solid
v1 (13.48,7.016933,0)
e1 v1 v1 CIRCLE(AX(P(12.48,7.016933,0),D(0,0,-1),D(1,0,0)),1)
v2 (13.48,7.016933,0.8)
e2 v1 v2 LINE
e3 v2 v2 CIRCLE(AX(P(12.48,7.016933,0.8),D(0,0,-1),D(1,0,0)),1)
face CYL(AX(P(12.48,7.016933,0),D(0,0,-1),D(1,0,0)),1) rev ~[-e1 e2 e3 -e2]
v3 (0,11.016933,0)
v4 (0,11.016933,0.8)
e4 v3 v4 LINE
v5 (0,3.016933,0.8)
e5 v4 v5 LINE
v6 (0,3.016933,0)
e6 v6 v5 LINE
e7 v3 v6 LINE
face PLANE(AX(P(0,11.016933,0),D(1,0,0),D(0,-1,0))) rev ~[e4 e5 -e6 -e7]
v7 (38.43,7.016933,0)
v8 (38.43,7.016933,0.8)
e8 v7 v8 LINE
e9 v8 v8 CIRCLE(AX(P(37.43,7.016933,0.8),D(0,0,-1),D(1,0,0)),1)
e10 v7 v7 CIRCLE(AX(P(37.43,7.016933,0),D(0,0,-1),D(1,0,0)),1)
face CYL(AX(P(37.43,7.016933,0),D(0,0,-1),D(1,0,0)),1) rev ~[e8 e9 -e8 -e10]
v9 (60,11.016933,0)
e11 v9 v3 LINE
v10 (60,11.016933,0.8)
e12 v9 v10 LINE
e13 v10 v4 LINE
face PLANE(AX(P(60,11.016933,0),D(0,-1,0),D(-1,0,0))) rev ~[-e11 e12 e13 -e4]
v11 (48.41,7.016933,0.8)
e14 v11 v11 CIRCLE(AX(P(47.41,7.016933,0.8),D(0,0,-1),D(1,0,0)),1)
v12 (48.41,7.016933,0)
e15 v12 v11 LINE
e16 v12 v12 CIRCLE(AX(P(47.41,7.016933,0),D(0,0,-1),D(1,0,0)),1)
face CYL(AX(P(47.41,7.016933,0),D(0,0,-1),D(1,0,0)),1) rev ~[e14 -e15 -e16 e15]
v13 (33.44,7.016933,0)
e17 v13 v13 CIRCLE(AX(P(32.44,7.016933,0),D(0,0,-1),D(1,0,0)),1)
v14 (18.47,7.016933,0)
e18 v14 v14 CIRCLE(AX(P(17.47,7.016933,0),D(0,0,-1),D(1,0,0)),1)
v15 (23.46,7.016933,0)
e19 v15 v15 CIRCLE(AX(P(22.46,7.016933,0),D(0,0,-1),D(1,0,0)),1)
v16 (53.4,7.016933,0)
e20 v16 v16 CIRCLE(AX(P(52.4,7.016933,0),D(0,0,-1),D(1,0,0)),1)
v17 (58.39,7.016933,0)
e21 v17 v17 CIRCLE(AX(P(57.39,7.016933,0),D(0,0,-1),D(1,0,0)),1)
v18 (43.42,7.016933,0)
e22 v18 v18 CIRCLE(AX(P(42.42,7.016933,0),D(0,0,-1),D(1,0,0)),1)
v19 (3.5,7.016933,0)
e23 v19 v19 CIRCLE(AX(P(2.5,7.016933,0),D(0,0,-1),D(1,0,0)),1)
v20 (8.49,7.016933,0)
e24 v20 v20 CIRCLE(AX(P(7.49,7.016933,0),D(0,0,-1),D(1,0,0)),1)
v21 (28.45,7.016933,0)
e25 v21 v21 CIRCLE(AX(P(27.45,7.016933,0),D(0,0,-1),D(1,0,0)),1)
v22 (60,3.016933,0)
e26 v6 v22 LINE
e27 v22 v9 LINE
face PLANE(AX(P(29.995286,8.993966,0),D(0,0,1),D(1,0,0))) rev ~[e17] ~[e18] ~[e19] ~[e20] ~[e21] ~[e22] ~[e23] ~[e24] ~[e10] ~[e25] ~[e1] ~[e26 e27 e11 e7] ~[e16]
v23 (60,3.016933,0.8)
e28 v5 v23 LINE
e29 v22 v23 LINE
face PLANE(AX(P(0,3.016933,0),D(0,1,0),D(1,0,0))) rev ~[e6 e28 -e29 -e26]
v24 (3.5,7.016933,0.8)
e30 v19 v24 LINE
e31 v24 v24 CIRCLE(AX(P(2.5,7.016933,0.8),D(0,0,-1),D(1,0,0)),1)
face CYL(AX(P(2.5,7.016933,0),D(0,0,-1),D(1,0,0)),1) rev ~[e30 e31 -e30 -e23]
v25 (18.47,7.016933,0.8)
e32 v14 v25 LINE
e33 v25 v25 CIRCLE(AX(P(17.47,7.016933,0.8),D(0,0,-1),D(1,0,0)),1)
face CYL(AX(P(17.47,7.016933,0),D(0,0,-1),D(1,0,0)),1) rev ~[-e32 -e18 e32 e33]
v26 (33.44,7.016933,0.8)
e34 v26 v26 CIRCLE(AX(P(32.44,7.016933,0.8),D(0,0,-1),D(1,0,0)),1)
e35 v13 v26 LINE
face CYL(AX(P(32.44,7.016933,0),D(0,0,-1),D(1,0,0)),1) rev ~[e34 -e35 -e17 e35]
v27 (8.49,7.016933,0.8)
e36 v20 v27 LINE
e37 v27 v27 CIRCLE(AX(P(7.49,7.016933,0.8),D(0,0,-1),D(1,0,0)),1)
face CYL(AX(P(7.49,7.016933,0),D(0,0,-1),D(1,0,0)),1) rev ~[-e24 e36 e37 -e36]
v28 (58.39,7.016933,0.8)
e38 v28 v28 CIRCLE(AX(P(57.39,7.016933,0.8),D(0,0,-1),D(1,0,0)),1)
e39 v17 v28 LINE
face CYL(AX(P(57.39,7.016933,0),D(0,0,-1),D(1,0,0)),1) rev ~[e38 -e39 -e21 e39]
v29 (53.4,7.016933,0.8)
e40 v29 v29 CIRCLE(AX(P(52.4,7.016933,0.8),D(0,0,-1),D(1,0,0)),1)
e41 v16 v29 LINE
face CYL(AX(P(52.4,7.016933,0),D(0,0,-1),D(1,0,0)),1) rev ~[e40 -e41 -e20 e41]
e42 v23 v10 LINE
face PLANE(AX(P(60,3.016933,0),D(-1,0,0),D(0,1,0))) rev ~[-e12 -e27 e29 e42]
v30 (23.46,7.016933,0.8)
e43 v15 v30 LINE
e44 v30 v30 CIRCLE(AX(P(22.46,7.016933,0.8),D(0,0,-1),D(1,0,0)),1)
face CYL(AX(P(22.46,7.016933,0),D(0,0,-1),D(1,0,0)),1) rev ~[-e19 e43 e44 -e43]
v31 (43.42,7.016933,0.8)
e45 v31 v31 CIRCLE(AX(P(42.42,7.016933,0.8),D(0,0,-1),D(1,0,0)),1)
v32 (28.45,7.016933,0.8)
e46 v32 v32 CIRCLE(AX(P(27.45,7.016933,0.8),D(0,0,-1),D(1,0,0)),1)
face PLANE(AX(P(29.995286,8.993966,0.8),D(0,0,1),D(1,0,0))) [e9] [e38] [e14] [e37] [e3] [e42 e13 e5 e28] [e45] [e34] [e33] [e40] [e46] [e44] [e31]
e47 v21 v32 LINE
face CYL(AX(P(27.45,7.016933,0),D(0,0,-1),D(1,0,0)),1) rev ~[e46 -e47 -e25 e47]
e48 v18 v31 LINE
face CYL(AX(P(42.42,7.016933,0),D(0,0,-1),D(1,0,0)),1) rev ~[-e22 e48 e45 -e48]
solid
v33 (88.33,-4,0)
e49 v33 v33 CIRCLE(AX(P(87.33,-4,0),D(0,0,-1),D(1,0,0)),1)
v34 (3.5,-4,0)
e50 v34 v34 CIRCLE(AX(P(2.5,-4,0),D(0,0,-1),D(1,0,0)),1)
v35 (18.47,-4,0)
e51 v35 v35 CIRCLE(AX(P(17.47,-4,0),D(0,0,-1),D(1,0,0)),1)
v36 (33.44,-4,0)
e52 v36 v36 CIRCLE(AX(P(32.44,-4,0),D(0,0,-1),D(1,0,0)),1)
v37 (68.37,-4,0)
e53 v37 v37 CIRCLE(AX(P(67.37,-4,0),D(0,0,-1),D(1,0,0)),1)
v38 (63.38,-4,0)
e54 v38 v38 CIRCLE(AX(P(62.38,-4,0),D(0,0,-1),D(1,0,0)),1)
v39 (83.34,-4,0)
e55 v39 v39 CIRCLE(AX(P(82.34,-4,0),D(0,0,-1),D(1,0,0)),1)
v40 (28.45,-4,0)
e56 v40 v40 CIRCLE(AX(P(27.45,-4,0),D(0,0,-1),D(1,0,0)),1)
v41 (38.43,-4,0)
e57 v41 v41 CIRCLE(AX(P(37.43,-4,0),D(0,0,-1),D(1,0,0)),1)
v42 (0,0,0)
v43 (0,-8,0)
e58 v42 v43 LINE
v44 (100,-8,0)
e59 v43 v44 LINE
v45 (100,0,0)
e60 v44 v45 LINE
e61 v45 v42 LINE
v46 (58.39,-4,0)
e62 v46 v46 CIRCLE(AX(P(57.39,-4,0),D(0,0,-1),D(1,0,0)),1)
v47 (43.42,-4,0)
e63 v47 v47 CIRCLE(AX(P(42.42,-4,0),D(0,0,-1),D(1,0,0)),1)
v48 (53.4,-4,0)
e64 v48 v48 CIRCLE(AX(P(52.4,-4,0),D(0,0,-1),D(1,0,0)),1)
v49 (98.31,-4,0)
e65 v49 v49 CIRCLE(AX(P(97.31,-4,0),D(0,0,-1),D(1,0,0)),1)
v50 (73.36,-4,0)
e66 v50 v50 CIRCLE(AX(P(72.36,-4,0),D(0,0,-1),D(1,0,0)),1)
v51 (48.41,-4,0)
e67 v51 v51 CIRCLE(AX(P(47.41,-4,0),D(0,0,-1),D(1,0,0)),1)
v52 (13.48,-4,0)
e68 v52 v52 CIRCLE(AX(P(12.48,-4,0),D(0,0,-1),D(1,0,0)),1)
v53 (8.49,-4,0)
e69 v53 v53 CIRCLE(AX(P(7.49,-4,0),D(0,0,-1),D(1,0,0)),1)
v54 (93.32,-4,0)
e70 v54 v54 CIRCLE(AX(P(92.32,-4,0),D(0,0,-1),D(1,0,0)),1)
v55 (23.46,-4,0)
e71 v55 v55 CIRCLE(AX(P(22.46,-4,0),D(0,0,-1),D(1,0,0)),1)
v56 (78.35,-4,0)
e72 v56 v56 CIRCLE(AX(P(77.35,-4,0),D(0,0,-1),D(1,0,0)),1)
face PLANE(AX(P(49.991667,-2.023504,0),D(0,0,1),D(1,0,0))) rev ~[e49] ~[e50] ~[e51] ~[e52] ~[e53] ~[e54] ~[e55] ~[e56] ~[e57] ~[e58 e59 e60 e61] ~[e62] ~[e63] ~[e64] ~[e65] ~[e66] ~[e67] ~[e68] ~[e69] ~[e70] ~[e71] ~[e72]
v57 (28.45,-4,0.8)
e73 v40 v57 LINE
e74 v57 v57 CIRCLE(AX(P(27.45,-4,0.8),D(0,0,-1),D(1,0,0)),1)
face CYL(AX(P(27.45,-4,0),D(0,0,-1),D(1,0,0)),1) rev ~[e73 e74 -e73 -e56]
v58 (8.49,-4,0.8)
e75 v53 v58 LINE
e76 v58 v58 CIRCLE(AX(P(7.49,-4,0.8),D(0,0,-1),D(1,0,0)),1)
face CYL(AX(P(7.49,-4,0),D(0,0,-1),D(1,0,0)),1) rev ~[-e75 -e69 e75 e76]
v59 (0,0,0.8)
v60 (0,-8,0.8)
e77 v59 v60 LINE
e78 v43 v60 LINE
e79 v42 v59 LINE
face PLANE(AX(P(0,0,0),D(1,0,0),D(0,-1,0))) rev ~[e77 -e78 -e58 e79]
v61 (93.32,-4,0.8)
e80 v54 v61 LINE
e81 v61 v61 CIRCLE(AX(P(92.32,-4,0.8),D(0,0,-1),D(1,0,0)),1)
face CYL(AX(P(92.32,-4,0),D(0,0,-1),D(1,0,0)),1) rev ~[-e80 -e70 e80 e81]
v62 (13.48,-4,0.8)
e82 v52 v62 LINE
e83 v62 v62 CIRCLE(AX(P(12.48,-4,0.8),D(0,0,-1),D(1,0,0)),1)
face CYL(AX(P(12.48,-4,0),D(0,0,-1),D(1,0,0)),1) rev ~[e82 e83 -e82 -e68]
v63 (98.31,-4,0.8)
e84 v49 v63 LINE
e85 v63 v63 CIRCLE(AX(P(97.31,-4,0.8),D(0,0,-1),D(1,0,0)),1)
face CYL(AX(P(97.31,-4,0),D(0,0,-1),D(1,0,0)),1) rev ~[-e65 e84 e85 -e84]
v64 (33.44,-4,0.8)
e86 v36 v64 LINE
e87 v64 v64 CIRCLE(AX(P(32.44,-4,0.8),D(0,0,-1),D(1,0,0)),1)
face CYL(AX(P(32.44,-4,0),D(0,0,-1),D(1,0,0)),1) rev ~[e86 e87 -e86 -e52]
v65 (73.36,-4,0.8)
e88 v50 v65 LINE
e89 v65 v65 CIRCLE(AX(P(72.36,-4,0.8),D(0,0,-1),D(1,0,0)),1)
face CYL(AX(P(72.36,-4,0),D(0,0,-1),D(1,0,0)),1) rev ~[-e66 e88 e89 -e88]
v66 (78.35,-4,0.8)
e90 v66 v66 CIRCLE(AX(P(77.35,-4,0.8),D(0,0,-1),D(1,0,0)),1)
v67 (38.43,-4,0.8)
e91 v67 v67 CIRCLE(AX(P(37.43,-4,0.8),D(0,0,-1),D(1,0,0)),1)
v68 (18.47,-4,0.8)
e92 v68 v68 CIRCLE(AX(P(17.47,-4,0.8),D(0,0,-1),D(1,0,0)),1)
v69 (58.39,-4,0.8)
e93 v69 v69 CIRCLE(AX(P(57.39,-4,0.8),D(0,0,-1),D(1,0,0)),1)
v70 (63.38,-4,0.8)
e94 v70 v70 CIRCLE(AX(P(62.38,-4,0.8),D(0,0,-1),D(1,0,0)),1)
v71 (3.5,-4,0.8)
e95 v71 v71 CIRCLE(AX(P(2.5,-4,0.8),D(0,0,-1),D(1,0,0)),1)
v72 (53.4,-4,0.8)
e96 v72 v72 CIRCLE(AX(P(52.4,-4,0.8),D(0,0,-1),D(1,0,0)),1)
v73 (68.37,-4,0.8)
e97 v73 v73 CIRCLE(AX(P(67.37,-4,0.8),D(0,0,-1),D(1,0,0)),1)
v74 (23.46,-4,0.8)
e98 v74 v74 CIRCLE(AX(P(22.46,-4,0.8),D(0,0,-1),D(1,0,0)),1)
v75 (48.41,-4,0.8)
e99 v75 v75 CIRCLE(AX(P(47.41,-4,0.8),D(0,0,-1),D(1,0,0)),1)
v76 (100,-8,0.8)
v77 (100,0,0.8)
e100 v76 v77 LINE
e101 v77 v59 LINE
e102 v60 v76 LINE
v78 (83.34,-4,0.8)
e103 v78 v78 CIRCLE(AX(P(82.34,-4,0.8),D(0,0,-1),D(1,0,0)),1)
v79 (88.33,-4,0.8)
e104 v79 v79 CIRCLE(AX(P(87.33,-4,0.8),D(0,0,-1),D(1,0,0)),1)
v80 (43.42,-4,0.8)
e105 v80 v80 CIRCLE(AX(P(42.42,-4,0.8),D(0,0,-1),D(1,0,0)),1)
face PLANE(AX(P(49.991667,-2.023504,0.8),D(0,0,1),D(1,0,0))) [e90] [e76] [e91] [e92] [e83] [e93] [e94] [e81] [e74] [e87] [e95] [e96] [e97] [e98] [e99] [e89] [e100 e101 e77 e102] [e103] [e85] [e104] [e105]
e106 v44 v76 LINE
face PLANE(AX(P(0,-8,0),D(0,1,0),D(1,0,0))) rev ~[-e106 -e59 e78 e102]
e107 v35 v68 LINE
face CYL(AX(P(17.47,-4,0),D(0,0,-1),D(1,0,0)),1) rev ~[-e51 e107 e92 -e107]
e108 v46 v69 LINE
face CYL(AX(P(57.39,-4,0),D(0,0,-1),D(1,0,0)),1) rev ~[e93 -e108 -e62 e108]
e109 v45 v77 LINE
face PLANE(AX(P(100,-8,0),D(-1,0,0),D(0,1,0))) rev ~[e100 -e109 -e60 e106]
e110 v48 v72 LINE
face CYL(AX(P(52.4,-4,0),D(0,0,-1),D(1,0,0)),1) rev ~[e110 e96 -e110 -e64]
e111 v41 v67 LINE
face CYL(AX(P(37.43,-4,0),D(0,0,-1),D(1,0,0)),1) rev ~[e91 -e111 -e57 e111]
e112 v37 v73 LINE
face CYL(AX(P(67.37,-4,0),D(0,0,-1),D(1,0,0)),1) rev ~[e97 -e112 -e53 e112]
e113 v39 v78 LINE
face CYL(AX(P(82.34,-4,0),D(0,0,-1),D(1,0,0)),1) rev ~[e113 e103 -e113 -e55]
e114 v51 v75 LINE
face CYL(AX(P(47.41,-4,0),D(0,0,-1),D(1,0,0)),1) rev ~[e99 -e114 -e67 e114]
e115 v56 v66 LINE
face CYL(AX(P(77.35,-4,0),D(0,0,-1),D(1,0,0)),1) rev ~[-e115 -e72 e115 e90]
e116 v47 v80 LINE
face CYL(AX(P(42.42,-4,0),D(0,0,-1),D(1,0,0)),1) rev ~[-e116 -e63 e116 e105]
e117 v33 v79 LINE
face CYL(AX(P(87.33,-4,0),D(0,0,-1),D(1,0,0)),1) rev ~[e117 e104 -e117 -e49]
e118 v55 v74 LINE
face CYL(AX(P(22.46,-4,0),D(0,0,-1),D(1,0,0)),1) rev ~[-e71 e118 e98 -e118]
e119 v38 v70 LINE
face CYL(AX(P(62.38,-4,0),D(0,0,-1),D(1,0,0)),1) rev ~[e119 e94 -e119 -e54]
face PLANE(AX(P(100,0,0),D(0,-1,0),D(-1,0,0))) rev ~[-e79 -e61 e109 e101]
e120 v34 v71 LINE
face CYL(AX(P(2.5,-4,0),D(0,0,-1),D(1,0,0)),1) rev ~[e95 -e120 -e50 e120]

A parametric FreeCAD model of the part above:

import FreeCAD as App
import Part
import Sketcher


def add_polygon(sketch, points):
    """Adds a closed chain of lines whose ends are joined by coincident constraints."""
    first, n = sketch.GeometryCount, len(points)
    for a, b in zip(points, points[1:] + points[:1]):
        sketch.addGeometry(Part.LineSegment(App.Vector(*a, 0), App.Vector(*b, 0)), False)
    for i in range(n):
        sketch.addConstraint(Sketcher.Constraint("Coincident", first + i, 2, first + (i + 1) % n, 1))

doc = App.newDocument("Part")
body = doc.addObject("PartDesign::Body", "Body")
body.AllowCompound = True

# Sketch on XY plane
sketch1 = body.newObject("Sketcher::SketchObject", "Sketch")
sketch1.AttachmentSupport = (doc.getObject("XY_Plane"), [""])
sketch1.MapMode = "FlatFace"
add_polygon(sketch1, [(60, 11), (0, 11), (0, 3), (60, 3)])  # lines 0-3
sketch1.addGeometry(Part.Circle(App.Vector(2.5, 7, 0), App.Vector(0, 0, 1), 1), False)  # 4
sketch1.addGeometry(Part.Circle(App.Vector(7.5, 7, 0), App.Vector(0, 0, 1), 1), False)  # 5
sketch1.addGeometry(Part.Circle(App.Vector(12.5, 7, 0), App.Vector(0, 0, 1), 1), False)  # 6
sketch1.addGeometry(Part.Circle(App.Vector(17.5, 7, 0), App.Vector(0, 0, 1), 1), False)  # 7
sketch1.addGeometry(Part.Circle(App.Vector(22.5, 7, 0), App.Vector(0, 0, 1), 1), False)  # 8
sketch1.addGeometry(Part.Circle(App.Vector(27.4, 7, 0), App.Vector(0, 0, 1), 1), False)  # 9
sketch1.addGeometry(Part.Circle(App.Vector(32.4, 7, 0), App.Vector(0, 0, 1), 1), False)  # 10
sketch1.addGeometry(Part.Circle(App.Vector(37.4, 7, 0), App.Vector(0, 0, 1), 1), False)  # 11
sketch1.addGeometry(Part.Circle(App.Vector(42.4, 7, 0), App.Vector(0, 0, 1), 1), False)  # 12
sketch1.addGeometry(Part.Circle(App.Vector(47.4, 7, 0), App.Vector(0, 0, 1), 1), False)  # 13
sketch1.addGeometry(Part.Circle(App.Vector(52.4, 7, 0), App.Vector(0, 0, 1), 1), False)  # 14
sketch1.addGeometry(Part.Circle(App.Vector(57.4, 7, 0), App.Vector(0, 0, 1), 1), False)  # 15
add_polygon(sketch1, [(0, 0), (0, -8), (100, -8), (100, 0)])  # lines 16-19
sketch1.addGeometry(Part.Circle(App.Vector(2.5, -4, 0), App.Vector(0, 0, 1), 1), False)  # 20
sketch1.addGeometry(Part.Circle(App.Vector(7.5, -4, 0), App.Vector(0, 0, 1), 1), False)  # 21
sketch1.addGeometry(Part.Circle(App.Vector(12.5, -4, 0), App.Vector(0, 0, 1), 1), False)  # 22
sketch1.addGeometry(Part.Circle(App.Vector(17.5, -4, 0), App.Vector(0, 0, 1), 1), False)  # 23
sketch1.addGeometry(Part.Circle(App.Vector(22.5, -4, 0), App.Vector(0, 0, 1), 1), False)  # 24
sketch1.addGeometry(Part.Circle(App.Vector(27.4, -4, 0), App.Vector(0, 0, 1), 1), False)  # 25
sketch1.addGeometry(Part.Circle(App.Vector(32.4, -4, 0), App.Vector(0, 0, 1), 1), False)  # 26
sketch1.addGeometry(Part.Circle(App.Vector(37.4, -4, 0), App.Vector(0, 0, 1), 1), False)  # 27
sketch1.addGeometry(Part.Circle(App.Vector(42.4, -4, 0), App.Vector(0, 0, 1), 1), False)  # 28
sketch1.addGeometry(Part.Circle(App.Vector(47.4, -4, 0), App.Vector(0, 0, 1), 1), False)  # 29
sketch1.addGeometry(Part.Circle(App.Vector(52.4, -4, 0), App.Vector(0, 0, 1), 1), False)  # 30
sketch1.addGeometry(Part.Circle(App.Vector(57.4, -4, 0), App.Vector(0, 0, 1), 1), False)  # 31
sketch1.addGeometry(Part.Circle(App.Vector(62.4, -4, 0), App.Vector(0, 0, 1), 1), False)  # 32
sketch1.addGeometry(Part.Circle(App.Vector(67.4, -4, 0), App.Vector(0, 0, 1), 1), False)  # 33
sketch1.addGeometry(Part.Circle(App.Vector(72.4, -4, 0), App.Vector(0, 0, 1), 1), False)  # 34
sketch1.addGeometry(Part.Circle(App.Vector(77.3, -4, 0), App.Vector(0, 0, 1), 1), False)  # 35
sketch1.addGeometry(Part.Circle(App.Vector(82.3, -4, 0), App.Vector(0, 0, 1), 1), False)  # 36
sketch1.addGeometry(Part.Circle(App.Vector(87.3, -4, 0), App.Vector(0, 0, 1), 1), False)  # 37
sketch1.addGeometry(Part.Circle(App.Vector(92.3, -4, 0), App.Vector(0, 0, 1), 1), False)  # 38
sketch1.addGeometry(Part.Circle(App.Vector(97.3, -4, 0), App.Vector(0, 0, 1), 1), False)  # 39
sketch1.addConstraint([
    Sketcher.Constraint("Horizontal", 0),
    Sketcher.Constraint("Vertical", 1),
    Sketcher.Constraint("Horizontal", 2),
    Sketcher.Constraint("Vertical", 3),
    Sketcher.Constraint("Vertical", 16),
    Sketcher.Constraint("Horizontal", 17),
    Sketcher.Constraint("Vertical", 18),
    Sketcher.Constraint("Horizontal", 19),
    Sketcher.Constraint("Coincident", 19, 2, -1, 1),
    Sketcher.Constraint("Equal", 4, 5),
    Sketcher.Constraint("Equal", 5, 6),
    Sketcher.Constraint("Equal", 6, 7),
    Sketcher.Constraint("Equal", 7, 8),
    Sketcher.Constraint("Equal", 8, 9),
    Sketcher.Constraint("Equal", 9, 10),
    Sketcher.Constraint("Equal", 10, 11),
    Sketcher.Constraint("Equal", 11, 12),
    Sketcher.Constraint("Equal", 12, 13),
    Sketcher.Constraint("Equal", 13, 14),
    Sketcher.Constraint("Equal", 14, 15),
    Sketcher.Constraint("Equal", 15, 20),
    Sketcher.Constraint("Equal", 20, 21),
    Sketcher.Constraint("Equal", 21, 22),
    Sketcher.Constraint("Equal", 22, 23),
    Sketcher.Constraint("Equal", 23, 24),
    Sketcher.Constraint("Equal", 24, 25),
    Sketcher.Constraint("Equal", 25, 26),
    Sketcher.Constraint("Equal", 26, 27),
    Sketcher.Constraint("Equal", 27, 28),
    Sketcher.Constraint("Equal", 28, 29),
    Sketcher.Constraint("Equal", 29, 30),
    Sketcher.Constraint("Equal", 30, 31),
    Sketcher.Constraint("Equal", 31, 32),
    Sketcher.Constraint("Equal", 32, 33),
    Sketcher.Constraint("Equal", 33, 34),
    Sketcher.Constraint("Equal", 34, 35),
    Sketcher.Constraint("Equal", 35, 36),
    Sketcher.Constraint("Equal", 36, 37),
    Sketcher.Constraint("Equal", 37, 38),
    Sketcher.Constraint("Equal", 38, 39),
    Sketcher.Constraint("PointOnObject", 0, 2, -2),
    Sketcher.Constraint("Horizontal", 4, 3, 5, 3),
    Sketcher.Constraint("Horizontal", 5, 3, 6, 3),
    Sketcher.Constraint("Horizontal", 6, 3, 7, 3),
    Sketcher.Constraint("Horizontal", 7, 3, 8, 3),
    Sketcher.Constraint("Horizontal", 8, 3, 9, 3),
    Sketcher.Constraint("Horizontal", 9, 3, 10, 3),
    Sketcher.Constraint("Horizontal", 10, 3, 11, 3),
    Sketcher.Constraint("Horizontal", 11, 3, 12, 3),
    Sketcher.Constraint("Horizontal", 12, 3, 13, 3),
    Sketcher.Constraint("Horizontal", 13, 3, 14, 3),
    Sketcher.Constraint("Horizontal", 14, 3, 15, 3),
    Sketcher.Constraint("Horizontal", 20, 3, 21, 3),
    Sketcher.Constraint("Horizontal", 21, 3, 22, 3),
    Sketcher.Constraint("Horizontal", 22, 3, 23, 3),
    Sketcher.Constraint("Horizontal", 23, 3, 24, 3),
    Sketcher.Constraint("Horizontal", 24, 3, 25, 3),
    Sketcher.Constraint("Horizontal", 25, 3, 26, 3),
    Sketcher.Constraint("Horizontal", 26, 3, 27, 3),
    Sketcher.Constraint("Horizontal", 27, 3, 28, 3),
    Sketcher.Constraint("Horizontal", 28, 3, 29, 3),
    Sketcher.Constraint("Horizontal", 29, 3, 30, 3),
    Sketcher.Constraint("Horizontal", 30, 3, 31, 3),
    Sketcher.Constraint("Horizontal", 31, 3, 32, 3),
    Sketcher.Constraint("Horizontal", 32, 3, 33, 3),
    Sketcher.Constraint("Horizontal", 33, 3, 34, 3),
    Sketcher.Constraint("Horizontal", 34, 3, 35, 3),
    Sketcher.Constraint("Horizontal", 35, 3, 36, 3),
    Sketcher.Constraint("Horizontal", 36, 3, 37, 3),
    Sketcher.Constraint("Horizontal", 37, 3, 38, 3),
    Sketcher.Constraint("Horizontal", 38, 3, 39, 3),
    Sketcher.Constraint("Vertical", 4, 3, 20, 3),
    Sketcher.Constraint("Vertical", 5, 3, 21, 3),
    Sketcher.Constraint("Vertical", 6, 3, 22, 3),
    Sketcher.Constraint("Vertical", 7, 3, 23, 3),
    Sketcher.Constraint("Vertical", 8, 3, 24, 3),
    Sketcher.Constraint("Vertical", 9, 3, 25, 3),
    Sketcher.Constraint("Vertical", 10, 3, 26, 3),
    Sketcher.Constraint("Vertical", 11, 3, 27, 3),
    Sketcher.Constraint("Vertical", 12, 3, 28, 3),
    Sketcher.Constraint("Vertical", 13, 3, 29, 3),
    Sketcher.Constraint("Vertical", 14, 3, 30, 3),
    Sketcher.Constraint("Vertical", 15, 3, 31, 3),
    Sketcher.Constraint("Equal", 3, 16),
    Sketcher.Constraint("Diameter", 4, 2.0),
    Sketcher.Constraint("DistanceX", 0, 2, 0, 1, 60.0),
    Sketcher.Constraint("DistanceX", 17, 1, 17, 2, 100.0),
    Sketcher.Constraint("DistanceY", 1, 2, 1, 1, 8.0),
    Sketcher.Constraint("DistanceY", 20, 3, -1, 1, 4.0),
    Sketcher.Constraint("DistanceY", 4, 3, 0, 2, 4.0),
    Sketcher.Constraint("DistanceX", -1, 1, 4, 3, 2.5),
    Sketcher.Constraint("DistanceX", -1, 1, 14, 3, 52.4),
    Sketcher.Constraint("DistanceX", -1, 1, 5, 3, 7.49),
    Sketcher.Constraint("DistanceX", -1, 1, 6, 3, 12.48),
    Sketcher.Constraint("DistanceX", -1, 1, 7, 3, 17.47),
    Sketcher.Constraint("DistanceX", -1, 1, 8, 3, 22.46),
    Sketcher.Constraint("DistanceX", -1, 1, 9, 3, 27.45),
    Sketcher.Constraint("DistanceX", -1, 1, 10, 3, 32.44),
    Sketcher.Constraint("DistanceX", -1, 1, 11, 3, 37.43),
    Sketcher.Constraint("DistanceX", -1, 1, 12, 3, 42.42),
    Sketcher.Constraint("DistanceX", -1, 1, 13, 3, 47.41),
    Sketcher.Constraint("DistanceX", -1, 1, 15, 3, 57.39),
    Sketcher.Constraint("DistanceX", -1, 1, 32, 3, 62.38),
    Sketcher.Constraint("DistanceX", -1, 1, 33, 3, 67.37),
    Sketcher.Constraint("DistanceX", -1, 1, 34, 3, 72.36),
    Sketcher.Constraint("DistanceX", -1, 1, 35, 3, 77.35),
    Sketcher.Constraint("DistanceX", -1, 1, 36, 3, 82.34),
    Sketcher.Constraint("DistanceX", -1, 1, 37, 3, 87.33),
    Sketcher.Constraint("DistanceX", -1, 1, 38, 3, 92.32),
    Sketcher.Constraint("DistanceX", -1, 1, 39, 3, 97.31),
    Sketcher.Constraint("DistanceY", -1, 1, 4, 3, 7.016933),
])
pad1 = body.newObject("PartDesign::Pad", "Pad")
pad1.Profile = sketch1
pad1.Length = 0.8

doc.recompute()
